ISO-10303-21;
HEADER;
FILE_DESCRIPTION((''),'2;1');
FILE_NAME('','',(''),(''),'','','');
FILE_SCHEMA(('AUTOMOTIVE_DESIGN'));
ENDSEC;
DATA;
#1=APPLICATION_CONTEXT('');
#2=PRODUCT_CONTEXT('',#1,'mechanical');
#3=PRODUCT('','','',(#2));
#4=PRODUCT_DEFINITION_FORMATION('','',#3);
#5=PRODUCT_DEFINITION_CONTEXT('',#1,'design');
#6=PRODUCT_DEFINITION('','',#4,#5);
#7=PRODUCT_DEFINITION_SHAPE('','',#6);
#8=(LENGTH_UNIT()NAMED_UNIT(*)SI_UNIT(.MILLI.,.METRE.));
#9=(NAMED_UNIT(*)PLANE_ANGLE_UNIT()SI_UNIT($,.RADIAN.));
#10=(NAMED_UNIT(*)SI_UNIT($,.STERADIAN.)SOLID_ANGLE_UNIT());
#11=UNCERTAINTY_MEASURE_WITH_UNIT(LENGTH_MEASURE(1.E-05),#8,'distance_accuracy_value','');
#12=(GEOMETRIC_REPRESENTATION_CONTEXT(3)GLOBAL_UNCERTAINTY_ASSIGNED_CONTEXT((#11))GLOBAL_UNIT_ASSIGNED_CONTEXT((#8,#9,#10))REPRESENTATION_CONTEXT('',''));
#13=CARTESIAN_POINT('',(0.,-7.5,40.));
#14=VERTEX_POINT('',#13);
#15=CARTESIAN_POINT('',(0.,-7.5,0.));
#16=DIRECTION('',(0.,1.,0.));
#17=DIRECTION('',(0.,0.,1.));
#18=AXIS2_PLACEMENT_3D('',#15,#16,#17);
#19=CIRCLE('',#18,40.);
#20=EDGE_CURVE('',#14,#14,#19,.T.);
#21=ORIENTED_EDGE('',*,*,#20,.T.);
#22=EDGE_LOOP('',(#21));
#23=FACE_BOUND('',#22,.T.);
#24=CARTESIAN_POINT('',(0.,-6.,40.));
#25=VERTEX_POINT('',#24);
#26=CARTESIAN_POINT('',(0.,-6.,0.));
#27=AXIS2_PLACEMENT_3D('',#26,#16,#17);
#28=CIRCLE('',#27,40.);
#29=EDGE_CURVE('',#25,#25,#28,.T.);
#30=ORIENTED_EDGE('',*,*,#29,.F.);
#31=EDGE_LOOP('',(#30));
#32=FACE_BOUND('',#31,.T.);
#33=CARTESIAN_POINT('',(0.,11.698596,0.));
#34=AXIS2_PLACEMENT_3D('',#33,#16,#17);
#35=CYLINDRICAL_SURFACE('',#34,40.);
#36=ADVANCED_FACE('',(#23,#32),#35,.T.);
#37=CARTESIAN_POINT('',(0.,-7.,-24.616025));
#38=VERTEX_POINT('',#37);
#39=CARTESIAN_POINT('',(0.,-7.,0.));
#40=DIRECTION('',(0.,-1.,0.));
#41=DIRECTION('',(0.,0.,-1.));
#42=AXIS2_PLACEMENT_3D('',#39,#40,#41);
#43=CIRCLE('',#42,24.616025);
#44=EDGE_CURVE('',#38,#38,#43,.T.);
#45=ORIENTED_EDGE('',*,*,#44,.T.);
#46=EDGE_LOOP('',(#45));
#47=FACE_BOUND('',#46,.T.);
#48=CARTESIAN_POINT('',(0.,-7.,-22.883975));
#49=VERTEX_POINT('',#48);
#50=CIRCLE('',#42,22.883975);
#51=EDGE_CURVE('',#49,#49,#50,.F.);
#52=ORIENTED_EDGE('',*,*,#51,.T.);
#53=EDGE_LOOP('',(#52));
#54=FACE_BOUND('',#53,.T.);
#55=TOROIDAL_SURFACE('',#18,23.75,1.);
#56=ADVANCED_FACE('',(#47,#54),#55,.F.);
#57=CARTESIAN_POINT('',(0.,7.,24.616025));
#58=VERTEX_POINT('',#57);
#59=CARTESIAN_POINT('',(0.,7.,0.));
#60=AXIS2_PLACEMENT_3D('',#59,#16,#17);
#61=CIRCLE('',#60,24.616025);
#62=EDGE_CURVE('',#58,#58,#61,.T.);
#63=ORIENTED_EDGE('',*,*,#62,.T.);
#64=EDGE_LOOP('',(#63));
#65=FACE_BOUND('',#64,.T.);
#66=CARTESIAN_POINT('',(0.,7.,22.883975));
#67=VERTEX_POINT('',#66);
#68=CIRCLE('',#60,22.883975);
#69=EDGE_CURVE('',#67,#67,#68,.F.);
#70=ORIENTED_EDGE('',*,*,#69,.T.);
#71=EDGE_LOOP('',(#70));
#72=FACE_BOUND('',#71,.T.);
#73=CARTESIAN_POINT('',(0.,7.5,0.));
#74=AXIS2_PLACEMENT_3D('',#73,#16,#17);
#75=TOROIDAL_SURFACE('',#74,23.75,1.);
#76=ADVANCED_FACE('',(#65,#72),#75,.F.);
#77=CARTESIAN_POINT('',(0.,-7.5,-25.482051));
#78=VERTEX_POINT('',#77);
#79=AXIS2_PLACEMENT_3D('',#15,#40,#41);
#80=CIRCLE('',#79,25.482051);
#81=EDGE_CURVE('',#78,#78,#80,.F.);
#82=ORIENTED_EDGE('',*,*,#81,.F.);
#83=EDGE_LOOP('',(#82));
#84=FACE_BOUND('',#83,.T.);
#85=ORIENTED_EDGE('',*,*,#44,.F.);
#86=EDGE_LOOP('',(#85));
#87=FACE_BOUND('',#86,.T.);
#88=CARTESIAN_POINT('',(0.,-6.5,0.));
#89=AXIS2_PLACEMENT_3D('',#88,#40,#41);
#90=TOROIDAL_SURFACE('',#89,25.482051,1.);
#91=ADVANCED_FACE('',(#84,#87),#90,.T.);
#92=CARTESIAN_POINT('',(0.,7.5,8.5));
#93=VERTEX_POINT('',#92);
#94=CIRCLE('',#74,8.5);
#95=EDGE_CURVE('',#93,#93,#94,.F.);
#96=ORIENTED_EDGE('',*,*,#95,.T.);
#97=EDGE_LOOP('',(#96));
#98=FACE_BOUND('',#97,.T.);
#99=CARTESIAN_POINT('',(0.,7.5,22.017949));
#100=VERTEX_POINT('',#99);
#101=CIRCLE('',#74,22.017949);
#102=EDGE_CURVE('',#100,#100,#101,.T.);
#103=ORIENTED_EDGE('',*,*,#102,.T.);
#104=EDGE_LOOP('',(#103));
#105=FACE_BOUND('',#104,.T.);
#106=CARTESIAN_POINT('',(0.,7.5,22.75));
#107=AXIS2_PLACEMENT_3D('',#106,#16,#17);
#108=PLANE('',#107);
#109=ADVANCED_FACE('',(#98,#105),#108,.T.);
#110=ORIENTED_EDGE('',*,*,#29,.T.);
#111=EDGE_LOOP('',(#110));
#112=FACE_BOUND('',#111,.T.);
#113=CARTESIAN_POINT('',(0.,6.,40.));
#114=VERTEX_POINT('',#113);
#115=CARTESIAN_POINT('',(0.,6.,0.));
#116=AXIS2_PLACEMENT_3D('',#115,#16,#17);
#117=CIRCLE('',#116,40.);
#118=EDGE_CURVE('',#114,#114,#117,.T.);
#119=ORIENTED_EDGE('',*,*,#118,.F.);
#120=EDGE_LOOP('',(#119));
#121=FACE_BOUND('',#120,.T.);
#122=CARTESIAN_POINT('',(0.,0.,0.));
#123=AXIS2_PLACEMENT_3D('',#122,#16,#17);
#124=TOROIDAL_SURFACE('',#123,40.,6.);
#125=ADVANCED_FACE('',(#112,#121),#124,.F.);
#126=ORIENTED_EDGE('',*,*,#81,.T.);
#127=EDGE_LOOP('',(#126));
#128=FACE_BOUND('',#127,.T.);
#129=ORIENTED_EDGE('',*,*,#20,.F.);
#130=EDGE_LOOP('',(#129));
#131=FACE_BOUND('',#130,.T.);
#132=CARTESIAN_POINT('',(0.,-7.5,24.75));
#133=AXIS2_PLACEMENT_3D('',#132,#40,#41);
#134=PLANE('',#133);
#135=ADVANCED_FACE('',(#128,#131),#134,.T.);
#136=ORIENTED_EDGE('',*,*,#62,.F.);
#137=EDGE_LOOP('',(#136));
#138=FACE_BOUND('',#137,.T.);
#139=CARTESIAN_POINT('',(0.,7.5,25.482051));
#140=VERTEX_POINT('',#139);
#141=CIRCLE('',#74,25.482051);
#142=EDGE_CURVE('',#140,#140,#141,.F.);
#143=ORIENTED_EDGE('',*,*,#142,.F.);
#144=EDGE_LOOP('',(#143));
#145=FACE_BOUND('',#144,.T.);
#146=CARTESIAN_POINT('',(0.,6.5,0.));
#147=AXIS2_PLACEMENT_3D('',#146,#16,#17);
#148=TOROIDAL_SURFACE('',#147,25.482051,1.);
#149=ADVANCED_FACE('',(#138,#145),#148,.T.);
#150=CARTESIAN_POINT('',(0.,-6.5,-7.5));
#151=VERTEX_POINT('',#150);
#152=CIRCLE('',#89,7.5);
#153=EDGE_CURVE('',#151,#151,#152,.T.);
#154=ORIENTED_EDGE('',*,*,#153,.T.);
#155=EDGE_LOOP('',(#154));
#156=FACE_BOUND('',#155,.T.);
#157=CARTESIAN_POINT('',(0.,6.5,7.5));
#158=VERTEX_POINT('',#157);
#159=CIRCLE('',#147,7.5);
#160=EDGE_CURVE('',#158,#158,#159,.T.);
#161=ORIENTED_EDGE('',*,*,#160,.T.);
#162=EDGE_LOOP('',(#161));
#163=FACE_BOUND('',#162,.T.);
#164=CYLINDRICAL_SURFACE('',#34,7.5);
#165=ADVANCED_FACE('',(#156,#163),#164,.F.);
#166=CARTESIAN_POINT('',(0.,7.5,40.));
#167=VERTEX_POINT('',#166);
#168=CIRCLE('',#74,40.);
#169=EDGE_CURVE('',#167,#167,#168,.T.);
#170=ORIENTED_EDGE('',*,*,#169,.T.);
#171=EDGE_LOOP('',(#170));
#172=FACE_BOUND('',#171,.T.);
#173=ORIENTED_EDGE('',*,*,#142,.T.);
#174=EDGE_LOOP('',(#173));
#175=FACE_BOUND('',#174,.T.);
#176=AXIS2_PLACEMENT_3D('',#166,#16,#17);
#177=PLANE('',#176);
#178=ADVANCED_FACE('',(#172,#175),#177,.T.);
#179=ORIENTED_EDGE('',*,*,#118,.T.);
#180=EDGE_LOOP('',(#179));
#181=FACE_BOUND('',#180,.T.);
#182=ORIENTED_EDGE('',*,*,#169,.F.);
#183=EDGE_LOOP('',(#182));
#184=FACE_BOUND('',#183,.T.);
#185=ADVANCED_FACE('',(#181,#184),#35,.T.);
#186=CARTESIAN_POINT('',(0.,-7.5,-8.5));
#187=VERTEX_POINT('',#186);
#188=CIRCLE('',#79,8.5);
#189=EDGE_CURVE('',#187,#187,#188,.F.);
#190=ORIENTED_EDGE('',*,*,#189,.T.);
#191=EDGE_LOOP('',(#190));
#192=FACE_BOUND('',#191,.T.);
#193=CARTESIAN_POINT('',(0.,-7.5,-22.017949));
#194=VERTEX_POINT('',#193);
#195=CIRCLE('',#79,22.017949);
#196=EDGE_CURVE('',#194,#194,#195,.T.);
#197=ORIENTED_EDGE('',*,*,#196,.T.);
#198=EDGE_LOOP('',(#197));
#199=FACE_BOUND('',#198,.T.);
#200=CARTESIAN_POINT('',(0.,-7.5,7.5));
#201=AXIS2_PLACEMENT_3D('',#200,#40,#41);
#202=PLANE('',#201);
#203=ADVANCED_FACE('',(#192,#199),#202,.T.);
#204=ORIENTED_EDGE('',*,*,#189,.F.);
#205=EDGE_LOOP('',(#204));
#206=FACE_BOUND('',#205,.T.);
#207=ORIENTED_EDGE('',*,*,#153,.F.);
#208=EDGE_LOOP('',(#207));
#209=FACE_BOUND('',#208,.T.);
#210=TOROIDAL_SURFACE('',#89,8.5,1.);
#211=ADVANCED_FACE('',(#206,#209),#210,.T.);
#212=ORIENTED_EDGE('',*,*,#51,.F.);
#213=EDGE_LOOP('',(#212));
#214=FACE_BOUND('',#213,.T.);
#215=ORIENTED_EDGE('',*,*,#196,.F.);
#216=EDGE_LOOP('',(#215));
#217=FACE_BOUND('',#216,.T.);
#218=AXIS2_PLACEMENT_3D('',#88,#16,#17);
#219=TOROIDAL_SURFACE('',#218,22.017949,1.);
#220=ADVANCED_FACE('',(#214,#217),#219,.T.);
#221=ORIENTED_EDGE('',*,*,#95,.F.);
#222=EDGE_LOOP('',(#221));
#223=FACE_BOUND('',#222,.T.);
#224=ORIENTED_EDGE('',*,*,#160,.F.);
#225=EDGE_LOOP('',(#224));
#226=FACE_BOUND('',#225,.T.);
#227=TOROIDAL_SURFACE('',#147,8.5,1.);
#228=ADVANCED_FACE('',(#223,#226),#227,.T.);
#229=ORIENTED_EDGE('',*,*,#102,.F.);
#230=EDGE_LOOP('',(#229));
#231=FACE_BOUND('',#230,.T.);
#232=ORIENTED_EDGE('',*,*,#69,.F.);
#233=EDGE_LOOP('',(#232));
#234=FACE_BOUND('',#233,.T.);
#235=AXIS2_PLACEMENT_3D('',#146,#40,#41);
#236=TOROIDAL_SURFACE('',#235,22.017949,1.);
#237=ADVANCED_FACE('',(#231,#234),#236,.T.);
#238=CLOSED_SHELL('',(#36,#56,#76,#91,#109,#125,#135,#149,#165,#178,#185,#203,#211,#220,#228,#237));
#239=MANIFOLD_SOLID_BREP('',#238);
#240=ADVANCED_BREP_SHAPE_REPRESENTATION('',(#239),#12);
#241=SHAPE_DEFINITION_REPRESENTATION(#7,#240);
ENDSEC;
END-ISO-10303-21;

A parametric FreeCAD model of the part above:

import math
import FreeCAD as App
import Part
import Sketcher
from FreeCAD import Vector
Q = App.Units.Quantity


def edges_at(feature, points):
    """Names of the edges that pass closest to the given points."""
    edges = feature.Shape.Edges
    near = lambda p: min(range(len(edges)), key=lambda i: edges[i].distToShape(Part.Vertex(*p))[0])
    return sorted({f"Edge{near(p) + 1}" for p in points})

doc = App.newDocument("Part")
body = doc.addObject("PartDesign::Body", "Body")

sketch1 = body.newObject("Sketcher::SketchObject", "Sketch")
sketch1.AttachmentSupport = (doc.getObject("YZ_Plane"), [""])
sketch1.MapMode = "FlatFace"
sketch1.addGeometry(Part.LineSegment(Vector(-7.5, 22.8, 0), Vector(-7.5, 7.5, 0)), False)
sketch1.addGeometry(Part.LineSegment(Vector(-7.5, 7.5, 0), Vector(7.5, 7.5, 0)), False)
sketch1.addGeometry(Part.LineSegment(Vector(7.5, 7.5, 0), Vector(7.5, 22.8, 0)), False)
sketch1.addGeometry(Part.ArcOfCircle(Part.Circle(Vector(7.5, 23.8, 0), Vector(0, 0, 1), 1), math.radians(90), math.radians(270)), False)
sketch1.addGeometry(Part.LineSegment(Vector(7.5, 24.8, 0), Vector(7.5, 40, 0)), False)
sketch1.addGeometry(Part.LineSegment(Vector(7.5, 40, 0), Vector(6, 40, 0)), False)
sketch1.addGeometry(Part.ArcOfCircle(Part.Circle(Vector(0, 40, 0), Vector(0, 0, 1), 6), math.radians(180), math.radians(360)), False)
sketch1.addGeometry(Part.LineSegment(Vector(-6, 40, 0), Vector(-7.5, 40, 0)), False)
sketch1.addGeometry(Part.LineSegment(Vector(-7.5, 40, 0), Vector(-7.5, 24.8, 0)), False)
sketch1.addGeometry(Part.ArcOfCircle(Part.Circle(Vector(-7.5, 23.8, 0), Vector(0, 0, 1), 1), math.radians(-90), math.radians(90)), False)
sketch1.addConstraint(Sketcher.Constraint("Coincident", 0, 2, 1, 1))
sketch1.addConstraint(Sketcher.Constraint("Coincident", 1, 2, 2, 1))
sketch1.addConstraint(Sketcher.Constraint("Coincident", 2, 2, 3, 2))
sketch1.addConstraint(Sketcher.Constraint("Coincident", 3, 1, 4, 1))
sketch1.addConstraint(Sketcher.Constraint("Coincident", 4, 2, 5, 1))
sketch1.addConstraint(Sketcher.Constraint("Coincident", 5, 2, 6, 2))
sketch1.addConstraint(Sketcher.Constraint("Coincident", 6, 1, 7, 1))
sketch1.addConstraint(Sketcher.Constraint("Coincident", 7, 2, 8, 1))
sketch1.addConstraint(Sketcher.Constraint("Coincident", 8, 2, 9, 2))
sketch1.addConstraint(Sketcher.Constraint("Coincident", 9, 1, 0, 1))
sketch1.addConstraint(Sketcher.Constraint("Vertical", 0))
sketch1.addConstraint(Sketcher.Constraint("Horizontal", 1))
sketch1.addConstraint(Sketcher.Constraint("Vertical", 2))
sketch1.addConstraint(Sketcher.Constraint("Vertical", 4))
sketch1.addConstraint(Sketcher.Constraint("Horizontal", 5))
sketch1.addConstraint(Sketcher.Constraint("Horizontal", 7))
sketch1.addConstraint(Sketcher.Constraint("Vertical", 8))
sketch1.addConstraint(Sketcher.Constraint("Equal", 3, 9))
sketch1.addConstraint(Sketcher.Constraint("Symmetric", 3, 3, 9, 3, -2))
sketch1.addConstraint(Sketcher.Constraint("Symmetric", 5, 2, 6, 1, -2))
sketch1.addConstraint(Sketcher.Constraint("Horizontal", 6, 3, 4, 2))
sketch1.addConstraint(Sketcher.Constraint("Vertical", 9, 3, 0, 2))
sketch1.addConstraint(Sketcher.Constraint("Vertical", 3, 3, 1, 2))
sketch1.addConstraint(Sketcher.Constraint("Vertical", 2, 2, 3, 1))
sketch1.addConstraint(Sketcher.Constraint("Vertical", 0, 2, 7, 2))
sketch1.addConstraint(Sketcher.Constraint("Equal", 2, 4))
sketch1.addConstraint(Sketcher.Constraint("Radius", 3, Q("1 mm")))
sketch1.addConstraint(Sketcher.Constraint("Radius", 6, Q("6 mm")))
sketch1.addConstraint(Sketcher.Constraint("DistanceX", 1, 1, 1, 2, Q("15 mm")))
sketch1.addConstraint(Sketcher.Constraint("DistanceY", -1, 1, 6, 3, Q("40 mm")))
sketch1.addConstraint(Sketcher.Constraint("DistanceY", 0, 2, 0, 1, Q("15.25 mm")))
revolution = body.newObject("PartDesign::Revolution", "Revolution")
revolution.Profile = sketch1
revolution.ReferenceAxis = (sketch1, ["H_Axis"])
revolution.Angle = 360
doc.recompute()

fillet = body.newObject("PartDesign::Fillet", "Fillet")
fillet.Base = (revolution, edges_at(revolution, [
    (0, -7.5, -24.75),
    (0, -7.5, -22.75),
    (0, 7.5, -22.75),
    (0, 7.5, -24.75),
]))
fillet.Radius = 1
doc.recompute()

fillet2 = body.newObject("PartDesign::Fillet", "Fillet001")
fillet2.Base = (fillet, edges_at(fillet, [(0, -7.5, -7.5), (0, 7.5, -7.5)]))
fillet2.Radius = 1

doc.recompute()
